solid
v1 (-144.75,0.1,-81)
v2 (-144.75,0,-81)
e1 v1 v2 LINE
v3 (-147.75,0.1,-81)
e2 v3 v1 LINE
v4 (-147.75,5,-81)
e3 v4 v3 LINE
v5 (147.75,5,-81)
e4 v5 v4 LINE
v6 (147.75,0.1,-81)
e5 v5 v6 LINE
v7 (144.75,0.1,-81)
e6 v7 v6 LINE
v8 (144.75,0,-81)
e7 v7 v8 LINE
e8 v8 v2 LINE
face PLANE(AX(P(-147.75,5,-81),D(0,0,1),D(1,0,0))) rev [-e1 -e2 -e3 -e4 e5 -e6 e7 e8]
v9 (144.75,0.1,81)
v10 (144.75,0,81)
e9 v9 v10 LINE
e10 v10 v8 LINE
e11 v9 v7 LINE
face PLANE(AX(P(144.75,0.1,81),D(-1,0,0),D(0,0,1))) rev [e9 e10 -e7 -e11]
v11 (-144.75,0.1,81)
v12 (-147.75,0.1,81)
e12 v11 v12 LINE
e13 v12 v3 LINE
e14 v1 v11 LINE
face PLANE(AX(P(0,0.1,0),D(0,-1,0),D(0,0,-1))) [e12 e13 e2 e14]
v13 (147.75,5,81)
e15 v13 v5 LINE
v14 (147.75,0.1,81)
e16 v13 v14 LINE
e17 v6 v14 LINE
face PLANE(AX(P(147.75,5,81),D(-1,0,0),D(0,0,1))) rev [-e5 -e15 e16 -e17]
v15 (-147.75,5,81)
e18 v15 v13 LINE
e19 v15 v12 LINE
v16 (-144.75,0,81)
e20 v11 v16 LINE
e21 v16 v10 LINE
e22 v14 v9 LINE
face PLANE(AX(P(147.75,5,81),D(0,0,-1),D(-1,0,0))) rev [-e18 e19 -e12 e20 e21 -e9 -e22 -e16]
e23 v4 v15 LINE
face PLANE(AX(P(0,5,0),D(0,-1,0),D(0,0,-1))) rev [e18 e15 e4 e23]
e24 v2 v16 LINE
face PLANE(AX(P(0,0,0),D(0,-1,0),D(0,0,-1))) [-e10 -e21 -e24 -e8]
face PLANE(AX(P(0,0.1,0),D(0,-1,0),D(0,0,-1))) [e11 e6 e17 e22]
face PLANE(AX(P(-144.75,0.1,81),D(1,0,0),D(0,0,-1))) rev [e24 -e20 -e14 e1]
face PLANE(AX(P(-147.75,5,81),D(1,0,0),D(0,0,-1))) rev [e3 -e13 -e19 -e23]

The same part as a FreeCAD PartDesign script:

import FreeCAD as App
import Part
import Sketcher


def add_polygon(sketch, points):
    """Adds a closed chain of lines whose ends are joined by coincident constraints."""
    first, n = sketch.GeometryCount, len(points)
    for a, b in zip(points, points[1:] + points[:1]):
        sketch.addGeometry(Part.LineSegment(App.Vector(*a, 0), App.Vector(*b, 0)), False)
    for i in range(n):
        sketch.addConstraint(Sketcher.Constraint("Coincident", first + i, 2, first + (i + 1) % n, 1))

doc = App.newDocument("Part")
body = doc.addObject("PartDesign::Body", "Body")

sketch1 = body.newObject("Sketcher::SketchObject", "Sketch")
sketch1.AttachmentSupport = (doc.getObject("XZ_Plane"), [""])
sketch1.MapMode = "FlatFace"
add_polygon(sketch1, [(58.25, -125), (-58.25, -125), (-58.25, -81), (-147.75, -81), (-147.75, 81), (-58.25, 81), (-58.25, 125), (58.25, 125), (58.25, 81), (147.75, 81), (147.75, -81), (58.25, -81)])
sketch1.addConstraint([
    Sketcher.Constraint("Horizontal", 0),
    Sketcher.Constraint("Vertical", 1),
    Sketcher.Constraint("Horizontal", 2),
    Sketcher.Constraint("Vertical", 3),
    Sketcher.Constraint("Horizontal", 4),
    Sketcher.Constraint("Vertical", 5),
    Sketcher.Constraint("Horizontal", 6),
    Sketcher.Constraint("Vertical", 7),
    Sketcher.Constraint("Horizontal", 8),
    Sketcher.Constraint("Vertical", 9),
    Sketcher.Constraint("Horizontal", 10),
    Sketcher.Constraint("Vertical", 11),
    Sketcher.Constraint("Symmetric", 0, 2, 6, 2, -1, 1),
    Sketcher.Constraint("Symmetric", 2, 2, 8, 2, -1, 1),
    Sketcher.Constraint("Symmetric", 4, 2, 10, 2, -1, 1),
    Sketcher.Constraint("Symmetric", 4, 2, 7, 2, -2),
    Sketcher.Constraint("DistanceY", 1, 1, 1, 2, 44.0),
    Sketcher.Constraint("DistanceY", 3, 1, 3, 2, 162.0),
    Sketcher.Constraint("DistanceX", 0, 2, 0, 1, 116.5),
    Sketcher.Constraint("DistanceX", 2, 2, 2, 1, 89.5),
])
pad1 = body.newObject("PartDesign::Pad", "Pad")
pad1.Profile = sketch1
pad1.Length = 5
pad1.Reversed = True

sketch2 = body.newObject("Sketcher::SketchObject", "Sketch001")
sketch2.AttachmentSupport = (doc.getObject("XZ_Plane"), [""])
sketch2.MapMode = "FlatFace"
add_polygon(sketch2, [(-58.25, 125), (-58.25, 81), (58.25, 81), (58.25, 125)])
add_polygon(sketch2, [(-58.25, -81), (-58.25, -125), (58.25, -125), (58.25, -81)])
sketch2.addConstraint([
    Sketcher.Constraint("Vertical", 0),
    Sketcher.Constraint("Horizontal", 1),
    Sketcher.Constraint("Vertical", 2),
    Sketcher.Constraint("Horizontal", 3),
    Sketcher.Constraint("Vertical", 4),
    Sketcher.Constraint("Horizontal", 5),
    Sketcher.Constraint("Vertical", 6),
    Sketcher.Constraint("Horizontal", 7),
    Sketcher.Constraint("Symmetric", 2, 2, 4, 2, -1, 1),
    Sketcher.Constraint("Symmetric", 0, 2, 6, 2, -1, 1),
    Sketcher.Constraint("Vertical", 3, 2, 4, 2),
    Sketcher.Constraint("DistanceY", 0, 2, 0, 1, 44.0),
    Sketcher.Constraint("DistanceX", 1, 1, 1, 2, 116.5),
    Sketcher.Constraint("DistanceY", -1, 1, 0, 2, 81.0),
])
pocket1 = body.newObject("PartDesign::Pocket", "Pocket")
pocket1.Profile = sketch2
pocket1.Type = "ThroughAll"
pocket1.Midplane = True

sketch3 = body.newObject("Sketcher::SketchObject", "Sketch002")
sketch3.AttachmentSupport = (doc.getObject("XZ_Plane"), [""])
sketch3.MapMode = "FlatFace"
add_polygon(sketch3, [(-150.75, 81), (-150.75, -81), (-144.75, -81), (-144.75, 81)])
add_polygon(sketch3, [(144.75, 81), (144.75, -81), (150.75, -81), (150.75, 81)])
sketch3.addConstraint([
    Sketcher.Constraint("Vertical", 0),
    Sketcher.Constraint("Horizontal", 1),
    Sketcher.Constraint("Vertical", 2),
    Sketcher.Constraint("Horizontal", 3),
    Sketcher.Constraint("Vertical", 4),
    Sketcher.Constraint("Horizontal", 5),
    Sketcher.Constraint("Vertical", 6),
    Sketcher.Constraint("Horizontal", 7),
    Sketcher.Constraint("Symmetric", 2, 2, 4, 2, -1, 1),
    Sketcher.Constraint("Symmetric", 0, 2, 6, 2, -1, 1),
    Sketcher.Constraint("Horizontal", 1, 2, 4, 2),
    Sketcher.Constraint("DistanceX", 1, 1, 1, 2, 6.0),
    Sketcher.Constraint("DistanceY", 0, 2, 0, 1, 162.0),
    Sketcher.Constraint("DistanceX", 1, 2, 4, 2, 289.5),
])
pocket2 = body.newObject("PartDesign::Pocket", "Pocket001")
pocket2.Profile = sketch3
pocket2.Length = 0.1

doc.recompute()
